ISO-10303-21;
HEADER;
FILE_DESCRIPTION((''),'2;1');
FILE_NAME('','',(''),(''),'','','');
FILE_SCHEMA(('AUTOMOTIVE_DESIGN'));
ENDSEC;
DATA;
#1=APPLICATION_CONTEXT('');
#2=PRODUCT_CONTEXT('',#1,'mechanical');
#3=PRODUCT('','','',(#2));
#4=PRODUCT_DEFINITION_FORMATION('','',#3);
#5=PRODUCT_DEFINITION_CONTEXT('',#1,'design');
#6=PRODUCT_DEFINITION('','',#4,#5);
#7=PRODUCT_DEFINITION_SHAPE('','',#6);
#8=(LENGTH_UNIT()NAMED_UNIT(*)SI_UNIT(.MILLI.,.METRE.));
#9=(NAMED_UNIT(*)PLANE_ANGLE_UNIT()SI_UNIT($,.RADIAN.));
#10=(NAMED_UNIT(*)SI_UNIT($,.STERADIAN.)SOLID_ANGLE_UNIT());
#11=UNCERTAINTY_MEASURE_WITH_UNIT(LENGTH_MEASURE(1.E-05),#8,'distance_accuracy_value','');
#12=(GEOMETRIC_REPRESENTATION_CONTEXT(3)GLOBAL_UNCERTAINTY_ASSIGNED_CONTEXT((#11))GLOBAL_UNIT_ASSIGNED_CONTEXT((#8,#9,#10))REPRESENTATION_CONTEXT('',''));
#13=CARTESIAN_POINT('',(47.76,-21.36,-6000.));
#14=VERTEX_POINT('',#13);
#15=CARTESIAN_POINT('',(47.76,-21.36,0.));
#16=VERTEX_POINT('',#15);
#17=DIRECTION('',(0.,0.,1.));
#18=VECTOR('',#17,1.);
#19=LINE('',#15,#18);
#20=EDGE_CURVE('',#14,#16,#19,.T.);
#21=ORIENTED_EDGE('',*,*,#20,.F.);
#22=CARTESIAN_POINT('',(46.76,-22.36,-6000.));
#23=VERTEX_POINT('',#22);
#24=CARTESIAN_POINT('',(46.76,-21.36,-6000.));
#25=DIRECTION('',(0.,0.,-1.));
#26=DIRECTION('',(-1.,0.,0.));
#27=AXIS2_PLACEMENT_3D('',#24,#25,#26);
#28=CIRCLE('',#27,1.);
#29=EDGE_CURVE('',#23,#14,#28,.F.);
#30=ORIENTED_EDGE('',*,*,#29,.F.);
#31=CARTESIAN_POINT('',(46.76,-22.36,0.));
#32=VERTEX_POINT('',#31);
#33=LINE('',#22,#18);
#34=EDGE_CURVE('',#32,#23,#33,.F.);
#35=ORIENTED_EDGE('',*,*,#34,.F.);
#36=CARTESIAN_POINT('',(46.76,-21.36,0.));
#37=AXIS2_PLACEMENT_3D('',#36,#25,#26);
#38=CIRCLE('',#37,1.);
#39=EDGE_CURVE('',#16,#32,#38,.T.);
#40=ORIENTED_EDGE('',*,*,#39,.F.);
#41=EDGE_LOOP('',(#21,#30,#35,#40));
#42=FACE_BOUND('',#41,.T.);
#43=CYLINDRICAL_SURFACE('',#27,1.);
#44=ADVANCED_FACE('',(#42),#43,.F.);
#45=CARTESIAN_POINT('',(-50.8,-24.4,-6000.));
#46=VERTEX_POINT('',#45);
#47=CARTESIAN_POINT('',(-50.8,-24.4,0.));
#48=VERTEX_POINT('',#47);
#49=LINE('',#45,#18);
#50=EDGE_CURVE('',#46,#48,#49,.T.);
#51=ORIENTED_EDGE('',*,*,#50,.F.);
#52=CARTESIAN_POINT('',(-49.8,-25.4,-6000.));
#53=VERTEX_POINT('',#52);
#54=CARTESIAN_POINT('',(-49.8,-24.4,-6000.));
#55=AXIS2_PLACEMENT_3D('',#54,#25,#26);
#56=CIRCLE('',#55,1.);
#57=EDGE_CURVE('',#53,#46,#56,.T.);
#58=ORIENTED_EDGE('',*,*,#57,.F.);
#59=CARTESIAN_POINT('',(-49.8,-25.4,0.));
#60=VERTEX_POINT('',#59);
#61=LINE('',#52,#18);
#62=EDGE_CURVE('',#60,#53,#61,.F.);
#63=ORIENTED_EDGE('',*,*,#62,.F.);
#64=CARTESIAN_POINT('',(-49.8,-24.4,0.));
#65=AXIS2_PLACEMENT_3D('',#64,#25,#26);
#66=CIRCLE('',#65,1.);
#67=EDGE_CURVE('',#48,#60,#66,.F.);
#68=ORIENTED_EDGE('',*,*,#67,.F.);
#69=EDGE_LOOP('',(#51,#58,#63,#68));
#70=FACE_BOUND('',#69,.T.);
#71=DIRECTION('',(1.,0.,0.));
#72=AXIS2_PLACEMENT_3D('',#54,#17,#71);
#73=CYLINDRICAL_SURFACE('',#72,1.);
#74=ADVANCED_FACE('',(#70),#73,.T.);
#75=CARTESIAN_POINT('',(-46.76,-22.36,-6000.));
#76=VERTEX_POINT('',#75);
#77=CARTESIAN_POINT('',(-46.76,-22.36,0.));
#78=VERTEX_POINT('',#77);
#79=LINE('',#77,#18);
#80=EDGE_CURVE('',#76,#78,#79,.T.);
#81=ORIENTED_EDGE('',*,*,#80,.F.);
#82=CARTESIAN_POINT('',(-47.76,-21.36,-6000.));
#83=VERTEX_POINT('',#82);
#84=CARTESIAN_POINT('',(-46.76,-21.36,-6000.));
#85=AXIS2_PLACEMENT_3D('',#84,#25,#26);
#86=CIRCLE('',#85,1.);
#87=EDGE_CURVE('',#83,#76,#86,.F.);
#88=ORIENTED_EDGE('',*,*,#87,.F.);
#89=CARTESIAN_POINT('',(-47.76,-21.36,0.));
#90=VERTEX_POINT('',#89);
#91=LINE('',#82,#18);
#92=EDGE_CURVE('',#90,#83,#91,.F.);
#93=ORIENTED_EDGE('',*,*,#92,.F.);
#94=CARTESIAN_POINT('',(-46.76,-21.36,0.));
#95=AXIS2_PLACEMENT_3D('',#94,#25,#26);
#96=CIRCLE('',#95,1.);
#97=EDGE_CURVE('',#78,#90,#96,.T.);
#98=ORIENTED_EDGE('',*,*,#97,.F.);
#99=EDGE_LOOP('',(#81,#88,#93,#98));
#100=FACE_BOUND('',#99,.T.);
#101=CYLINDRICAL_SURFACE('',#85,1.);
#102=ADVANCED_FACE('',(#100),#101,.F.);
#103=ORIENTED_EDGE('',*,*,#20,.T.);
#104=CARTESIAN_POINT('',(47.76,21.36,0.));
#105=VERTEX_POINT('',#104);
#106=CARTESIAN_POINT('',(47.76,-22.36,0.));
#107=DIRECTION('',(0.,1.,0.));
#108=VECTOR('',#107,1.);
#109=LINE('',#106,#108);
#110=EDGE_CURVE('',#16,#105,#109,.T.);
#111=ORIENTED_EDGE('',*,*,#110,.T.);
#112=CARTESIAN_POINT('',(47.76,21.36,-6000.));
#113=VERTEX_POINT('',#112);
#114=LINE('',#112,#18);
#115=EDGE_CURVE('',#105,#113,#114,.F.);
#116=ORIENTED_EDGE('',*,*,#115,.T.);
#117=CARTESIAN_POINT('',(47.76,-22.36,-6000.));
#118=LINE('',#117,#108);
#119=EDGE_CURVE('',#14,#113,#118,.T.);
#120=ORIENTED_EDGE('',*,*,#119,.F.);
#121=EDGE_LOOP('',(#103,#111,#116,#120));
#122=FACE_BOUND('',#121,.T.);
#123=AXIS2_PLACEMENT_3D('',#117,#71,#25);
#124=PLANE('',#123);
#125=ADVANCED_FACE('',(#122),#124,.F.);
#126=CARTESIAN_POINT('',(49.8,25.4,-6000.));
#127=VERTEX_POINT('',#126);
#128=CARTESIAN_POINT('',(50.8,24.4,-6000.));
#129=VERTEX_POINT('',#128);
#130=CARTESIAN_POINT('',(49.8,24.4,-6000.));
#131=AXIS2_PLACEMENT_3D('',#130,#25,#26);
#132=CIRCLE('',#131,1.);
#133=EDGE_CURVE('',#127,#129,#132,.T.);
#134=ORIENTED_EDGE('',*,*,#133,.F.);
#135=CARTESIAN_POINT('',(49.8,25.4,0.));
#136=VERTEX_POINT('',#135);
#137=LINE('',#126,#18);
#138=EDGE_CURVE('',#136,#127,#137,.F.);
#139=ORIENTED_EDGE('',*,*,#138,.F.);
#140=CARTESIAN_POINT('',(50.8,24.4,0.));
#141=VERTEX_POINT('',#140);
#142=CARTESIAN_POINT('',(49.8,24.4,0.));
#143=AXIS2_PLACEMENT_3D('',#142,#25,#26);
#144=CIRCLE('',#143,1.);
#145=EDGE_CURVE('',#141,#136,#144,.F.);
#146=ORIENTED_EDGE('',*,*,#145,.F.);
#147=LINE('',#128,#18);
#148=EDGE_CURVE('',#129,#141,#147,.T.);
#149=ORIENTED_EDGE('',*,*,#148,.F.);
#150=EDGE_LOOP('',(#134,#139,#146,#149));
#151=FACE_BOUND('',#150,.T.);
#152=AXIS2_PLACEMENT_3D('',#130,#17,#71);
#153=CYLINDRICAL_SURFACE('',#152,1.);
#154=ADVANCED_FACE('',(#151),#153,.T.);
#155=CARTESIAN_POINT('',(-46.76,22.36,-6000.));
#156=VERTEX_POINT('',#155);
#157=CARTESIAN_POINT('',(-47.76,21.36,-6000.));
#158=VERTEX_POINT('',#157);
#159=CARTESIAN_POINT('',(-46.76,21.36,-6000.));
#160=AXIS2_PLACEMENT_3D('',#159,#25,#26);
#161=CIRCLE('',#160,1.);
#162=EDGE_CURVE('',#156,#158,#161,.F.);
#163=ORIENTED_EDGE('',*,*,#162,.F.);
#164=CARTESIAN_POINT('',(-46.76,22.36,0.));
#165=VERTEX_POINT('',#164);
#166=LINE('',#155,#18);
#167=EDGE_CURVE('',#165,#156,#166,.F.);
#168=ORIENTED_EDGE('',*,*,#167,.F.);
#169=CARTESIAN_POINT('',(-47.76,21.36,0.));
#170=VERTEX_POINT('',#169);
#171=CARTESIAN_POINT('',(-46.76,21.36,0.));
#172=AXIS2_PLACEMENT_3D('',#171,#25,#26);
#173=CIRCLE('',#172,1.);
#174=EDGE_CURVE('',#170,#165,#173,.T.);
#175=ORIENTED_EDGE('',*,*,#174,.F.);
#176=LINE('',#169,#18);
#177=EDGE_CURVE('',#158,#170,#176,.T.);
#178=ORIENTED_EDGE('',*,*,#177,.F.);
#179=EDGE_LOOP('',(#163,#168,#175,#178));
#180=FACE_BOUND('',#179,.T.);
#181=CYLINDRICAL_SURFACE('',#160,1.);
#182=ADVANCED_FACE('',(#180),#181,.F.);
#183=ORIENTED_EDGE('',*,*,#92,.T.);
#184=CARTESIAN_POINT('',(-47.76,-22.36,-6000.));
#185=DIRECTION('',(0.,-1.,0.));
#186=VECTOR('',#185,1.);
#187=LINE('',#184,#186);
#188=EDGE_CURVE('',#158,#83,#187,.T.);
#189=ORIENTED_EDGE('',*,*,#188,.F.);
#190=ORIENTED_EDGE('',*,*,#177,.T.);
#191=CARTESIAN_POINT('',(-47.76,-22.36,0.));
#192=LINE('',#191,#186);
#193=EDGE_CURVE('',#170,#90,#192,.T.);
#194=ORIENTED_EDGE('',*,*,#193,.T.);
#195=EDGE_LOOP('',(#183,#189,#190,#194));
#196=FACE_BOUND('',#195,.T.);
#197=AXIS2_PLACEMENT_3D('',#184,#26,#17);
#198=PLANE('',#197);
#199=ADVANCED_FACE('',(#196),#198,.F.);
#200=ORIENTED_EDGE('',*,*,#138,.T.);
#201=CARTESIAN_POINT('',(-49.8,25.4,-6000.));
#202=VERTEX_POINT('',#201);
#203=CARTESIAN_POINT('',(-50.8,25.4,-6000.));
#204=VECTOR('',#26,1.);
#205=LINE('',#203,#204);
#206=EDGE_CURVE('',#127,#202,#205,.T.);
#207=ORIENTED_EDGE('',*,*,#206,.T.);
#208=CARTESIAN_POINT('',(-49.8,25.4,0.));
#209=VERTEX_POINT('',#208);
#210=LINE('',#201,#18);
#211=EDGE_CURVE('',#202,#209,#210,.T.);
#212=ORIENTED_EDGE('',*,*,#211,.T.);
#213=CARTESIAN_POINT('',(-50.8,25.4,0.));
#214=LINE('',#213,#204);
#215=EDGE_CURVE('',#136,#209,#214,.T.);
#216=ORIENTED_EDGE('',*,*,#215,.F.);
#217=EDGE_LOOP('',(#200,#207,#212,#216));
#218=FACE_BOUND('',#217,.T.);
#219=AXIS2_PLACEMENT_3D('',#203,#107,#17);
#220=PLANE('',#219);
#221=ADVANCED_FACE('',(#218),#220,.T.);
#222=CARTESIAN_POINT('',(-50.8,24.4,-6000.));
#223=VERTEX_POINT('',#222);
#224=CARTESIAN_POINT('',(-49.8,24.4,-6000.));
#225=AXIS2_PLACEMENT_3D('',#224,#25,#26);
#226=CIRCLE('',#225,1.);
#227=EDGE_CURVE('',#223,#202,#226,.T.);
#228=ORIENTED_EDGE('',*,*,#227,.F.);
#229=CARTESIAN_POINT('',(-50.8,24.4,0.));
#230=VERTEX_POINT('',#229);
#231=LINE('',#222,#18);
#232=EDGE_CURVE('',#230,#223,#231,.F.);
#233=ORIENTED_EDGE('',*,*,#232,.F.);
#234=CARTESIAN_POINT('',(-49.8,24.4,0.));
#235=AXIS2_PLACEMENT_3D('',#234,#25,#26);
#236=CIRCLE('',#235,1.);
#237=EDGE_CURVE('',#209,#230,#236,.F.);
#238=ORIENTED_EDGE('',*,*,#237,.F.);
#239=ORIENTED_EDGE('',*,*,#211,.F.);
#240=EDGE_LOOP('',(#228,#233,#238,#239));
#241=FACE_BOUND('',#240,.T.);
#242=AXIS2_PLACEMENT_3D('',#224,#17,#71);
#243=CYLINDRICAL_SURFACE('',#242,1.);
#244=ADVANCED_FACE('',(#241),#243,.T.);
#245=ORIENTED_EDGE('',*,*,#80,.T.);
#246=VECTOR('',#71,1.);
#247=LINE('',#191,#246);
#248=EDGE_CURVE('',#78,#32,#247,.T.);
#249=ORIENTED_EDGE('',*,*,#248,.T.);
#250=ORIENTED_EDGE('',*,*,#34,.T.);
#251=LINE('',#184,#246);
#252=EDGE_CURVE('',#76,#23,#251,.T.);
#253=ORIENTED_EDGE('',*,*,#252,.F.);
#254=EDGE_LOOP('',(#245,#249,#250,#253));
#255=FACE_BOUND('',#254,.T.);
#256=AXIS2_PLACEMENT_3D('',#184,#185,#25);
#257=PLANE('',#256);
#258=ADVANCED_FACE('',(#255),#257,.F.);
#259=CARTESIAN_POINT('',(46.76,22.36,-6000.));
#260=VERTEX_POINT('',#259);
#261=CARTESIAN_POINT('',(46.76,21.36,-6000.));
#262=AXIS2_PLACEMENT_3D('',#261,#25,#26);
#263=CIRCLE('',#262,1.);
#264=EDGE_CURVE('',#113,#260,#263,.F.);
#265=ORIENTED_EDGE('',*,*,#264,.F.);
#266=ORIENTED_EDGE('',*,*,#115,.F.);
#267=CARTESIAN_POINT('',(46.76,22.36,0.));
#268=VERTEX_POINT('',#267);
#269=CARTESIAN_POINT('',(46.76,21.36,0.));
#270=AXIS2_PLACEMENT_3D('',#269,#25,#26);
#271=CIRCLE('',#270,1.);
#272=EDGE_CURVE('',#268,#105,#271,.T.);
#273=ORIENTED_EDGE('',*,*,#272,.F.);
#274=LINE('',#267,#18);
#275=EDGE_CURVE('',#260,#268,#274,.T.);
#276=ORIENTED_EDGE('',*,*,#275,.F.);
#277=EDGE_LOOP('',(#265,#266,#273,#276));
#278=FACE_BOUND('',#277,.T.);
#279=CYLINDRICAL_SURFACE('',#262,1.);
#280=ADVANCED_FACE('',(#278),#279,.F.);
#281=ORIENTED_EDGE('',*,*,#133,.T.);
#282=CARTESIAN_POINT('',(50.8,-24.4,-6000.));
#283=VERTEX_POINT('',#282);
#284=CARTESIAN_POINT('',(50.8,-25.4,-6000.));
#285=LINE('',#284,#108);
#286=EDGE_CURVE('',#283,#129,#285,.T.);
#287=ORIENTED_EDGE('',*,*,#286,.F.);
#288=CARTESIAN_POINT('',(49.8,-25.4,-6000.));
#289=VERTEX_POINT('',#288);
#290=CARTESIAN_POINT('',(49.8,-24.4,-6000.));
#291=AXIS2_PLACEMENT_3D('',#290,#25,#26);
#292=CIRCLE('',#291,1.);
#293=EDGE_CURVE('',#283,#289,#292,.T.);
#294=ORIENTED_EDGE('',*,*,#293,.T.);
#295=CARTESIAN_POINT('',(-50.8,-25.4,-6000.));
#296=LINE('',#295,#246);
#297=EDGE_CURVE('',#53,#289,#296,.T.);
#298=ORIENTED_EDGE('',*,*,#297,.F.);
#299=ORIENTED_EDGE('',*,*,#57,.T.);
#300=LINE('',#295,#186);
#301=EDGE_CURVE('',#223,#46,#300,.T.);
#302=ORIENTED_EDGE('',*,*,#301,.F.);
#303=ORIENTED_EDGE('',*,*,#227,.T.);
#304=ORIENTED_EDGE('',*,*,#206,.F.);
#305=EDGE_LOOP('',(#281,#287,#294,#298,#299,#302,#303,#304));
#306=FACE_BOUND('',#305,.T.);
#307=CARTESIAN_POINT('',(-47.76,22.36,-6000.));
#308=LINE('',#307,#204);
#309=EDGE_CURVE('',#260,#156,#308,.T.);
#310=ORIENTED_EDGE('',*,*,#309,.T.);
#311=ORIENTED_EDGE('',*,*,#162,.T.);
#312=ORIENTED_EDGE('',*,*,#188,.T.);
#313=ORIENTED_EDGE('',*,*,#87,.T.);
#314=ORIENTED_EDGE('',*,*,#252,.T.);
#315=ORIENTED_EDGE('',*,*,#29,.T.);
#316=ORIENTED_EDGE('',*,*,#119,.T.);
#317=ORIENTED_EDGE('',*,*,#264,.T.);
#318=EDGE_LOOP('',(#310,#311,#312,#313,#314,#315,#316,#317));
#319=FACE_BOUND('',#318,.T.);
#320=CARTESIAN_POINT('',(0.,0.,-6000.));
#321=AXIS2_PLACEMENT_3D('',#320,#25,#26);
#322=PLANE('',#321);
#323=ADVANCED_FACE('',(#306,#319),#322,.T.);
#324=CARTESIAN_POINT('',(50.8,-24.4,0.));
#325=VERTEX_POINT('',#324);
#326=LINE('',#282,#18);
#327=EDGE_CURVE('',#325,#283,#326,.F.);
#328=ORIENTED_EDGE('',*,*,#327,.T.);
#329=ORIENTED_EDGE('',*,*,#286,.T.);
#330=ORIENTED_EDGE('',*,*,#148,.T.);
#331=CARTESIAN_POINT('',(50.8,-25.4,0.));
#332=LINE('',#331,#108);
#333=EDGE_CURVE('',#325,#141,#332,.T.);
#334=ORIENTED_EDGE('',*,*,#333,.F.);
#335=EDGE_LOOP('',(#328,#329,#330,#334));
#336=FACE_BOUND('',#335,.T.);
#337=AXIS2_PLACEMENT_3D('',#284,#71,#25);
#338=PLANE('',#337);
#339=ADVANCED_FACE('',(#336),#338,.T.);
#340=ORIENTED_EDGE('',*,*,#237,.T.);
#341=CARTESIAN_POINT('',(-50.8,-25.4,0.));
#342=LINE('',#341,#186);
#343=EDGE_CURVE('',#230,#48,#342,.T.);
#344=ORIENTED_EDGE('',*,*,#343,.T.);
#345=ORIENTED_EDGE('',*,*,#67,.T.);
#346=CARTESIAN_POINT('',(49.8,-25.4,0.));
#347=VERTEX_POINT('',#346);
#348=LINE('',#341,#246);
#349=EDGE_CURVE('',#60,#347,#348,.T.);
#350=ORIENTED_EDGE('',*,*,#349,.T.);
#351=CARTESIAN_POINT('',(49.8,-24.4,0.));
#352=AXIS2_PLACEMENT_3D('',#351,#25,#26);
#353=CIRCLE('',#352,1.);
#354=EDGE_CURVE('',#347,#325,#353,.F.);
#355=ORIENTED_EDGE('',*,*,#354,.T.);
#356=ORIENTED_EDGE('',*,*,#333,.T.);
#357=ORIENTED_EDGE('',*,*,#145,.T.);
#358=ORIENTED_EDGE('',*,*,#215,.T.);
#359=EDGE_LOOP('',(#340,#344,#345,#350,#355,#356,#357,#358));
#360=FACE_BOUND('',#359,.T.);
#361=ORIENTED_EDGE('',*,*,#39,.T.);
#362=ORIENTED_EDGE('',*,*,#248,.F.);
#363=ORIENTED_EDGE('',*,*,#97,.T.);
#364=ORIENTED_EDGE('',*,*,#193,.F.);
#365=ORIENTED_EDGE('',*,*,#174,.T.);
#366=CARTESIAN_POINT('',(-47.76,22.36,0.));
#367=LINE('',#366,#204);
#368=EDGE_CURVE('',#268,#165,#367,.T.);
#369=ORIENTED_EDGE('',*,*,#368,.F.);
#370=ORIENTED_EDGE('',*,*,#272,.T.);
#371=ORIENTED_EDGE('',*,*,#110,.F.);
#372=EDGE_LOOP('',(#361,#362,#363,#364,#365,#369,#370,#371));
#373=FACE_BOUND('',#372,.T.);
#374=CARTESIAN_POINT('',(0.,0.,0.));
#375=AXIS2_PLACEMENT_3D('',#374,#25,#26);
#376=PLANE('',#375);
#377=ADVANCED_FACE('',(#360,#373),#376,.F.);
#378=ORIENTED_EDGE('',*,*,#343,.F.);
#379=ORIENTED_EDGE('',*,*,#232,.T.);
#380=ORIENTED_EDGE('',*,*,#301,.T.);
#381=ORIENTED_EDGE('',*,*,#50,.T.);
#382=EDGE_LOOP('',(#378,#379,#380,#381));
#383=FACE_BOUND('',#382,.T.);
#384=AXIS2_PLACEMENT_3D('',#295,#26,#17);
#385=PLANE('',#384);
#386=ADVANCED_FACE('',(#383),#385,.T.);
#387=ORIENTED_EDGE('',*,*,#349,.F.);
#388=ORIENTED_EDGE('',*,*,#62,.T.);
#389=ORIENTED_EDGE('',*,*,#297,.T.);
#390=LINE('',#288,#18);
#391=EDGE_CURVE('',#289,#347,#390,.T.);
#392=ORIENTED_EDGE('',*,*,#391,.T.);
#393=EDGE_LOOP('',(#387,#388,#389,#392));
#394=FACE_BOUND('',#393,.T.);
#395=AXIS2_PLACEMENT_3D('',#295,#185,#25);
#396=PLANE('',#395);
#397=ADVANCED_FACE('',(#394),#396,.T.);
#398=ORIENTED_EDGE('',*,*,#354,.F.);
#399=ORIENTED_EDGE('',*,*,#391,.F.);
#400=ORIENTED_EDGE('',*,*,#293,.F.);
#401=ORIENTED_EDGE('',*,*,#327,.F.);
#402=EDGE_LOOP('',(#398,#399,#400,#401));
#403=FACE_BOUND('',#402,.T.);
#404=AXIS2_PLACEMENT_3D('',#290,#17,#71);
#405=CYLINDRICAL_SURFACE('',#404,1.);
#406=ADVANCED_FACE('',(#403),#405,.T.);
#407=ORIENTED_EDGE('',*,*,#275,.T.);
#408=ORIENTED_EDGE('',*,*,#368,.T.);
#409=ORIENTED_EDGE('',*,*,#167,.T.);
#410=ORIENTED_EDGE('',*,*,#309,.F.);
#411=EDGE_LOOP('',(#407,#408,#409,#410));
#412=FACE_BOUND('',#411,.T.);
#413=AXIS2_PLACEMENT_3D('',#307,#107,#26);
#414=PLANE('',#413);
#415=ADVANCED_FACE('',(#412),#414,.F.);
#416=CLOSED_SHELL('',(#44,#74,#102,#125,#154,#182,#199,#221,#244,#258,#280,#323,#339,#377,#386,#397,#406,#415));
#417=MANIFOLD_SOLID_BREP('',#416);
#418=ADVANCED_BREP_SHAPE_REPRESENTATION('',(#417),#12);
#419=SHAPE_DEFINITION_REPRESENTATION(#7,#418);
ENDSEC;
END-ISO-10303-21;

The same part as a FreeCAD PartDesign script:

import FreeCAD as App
import Part
import Sketcher
from FreeCAD import Vector


def edges_at(feature, points):
    """Names of the edges that pass closest to the given points."""
    edges = feature.Shape.Edges
    near = lambda p: min(range(len(edges)), key=lambda i: edges[i].distToShape(Part.Vertex(*p))[0])
    return sorted({f"Edge{near(p) + 1}" for p in points})


def add_polygon(sketch, points):
    """Adds a closed chain of lines whose ends are joined by coincident constraints."""
    first, n = sketch.GeometryCount, len(points)
    for a, b in zip(points, points[1:] + points[:1]):
        sketch.addGeometry(Part.LineSegment(App.Vector(*a, 0), App.Vector(*b, 0)), False)
    for i in range(n):
        sketch.addConstraint(Sketcher.Constraint("Coincident", first + i, 2, first + (i + 1) % n, 1))

doc = App.newDocument("Part")
body = doc.addObject("PartDesign::Body", "Body")

sketch1 = body.newObject("Sketcher::SketchObject", "Sketch")
sketch1.AttachmentSupport = (doc.getObject("XY_Plane"), [""])
sketch1.MapMode = "FlatFace"
add_polygon(sketch1, [(-51, 25), (-51, -25), (51, -25), (51, 25)])
add_polygon(sketch1, [(48, -22), (-48, -22), (-48, 22), (48, 22)])
sketch1.addConstraint(Sketcher.Constraint("Vertical", 0))
sketch1.addConstraint(Sketcher.Constraint("Horizontal", 1))
sketch1.addConstraint(Sketcher.Constraint("Vertical", 2))
sketch1.addConstraint(Sketcher.Constraint("Horizontal", 3))
sketch1.addConstraint(Sketcher.Constraint("Horizontal", 4))
sketch1.addConstraint(Sketcher.Constraint("Vertical", 5))
sketch1.addConstraint(Sketcher.Constraint("Horizontal", 6))
sketch1.addConstraint(Sketcher.Constraint("Vertical", 7))
sketch1.addConstraint(Sketcher.Constraint("Symmetric", 0, 2, 2, 2, -1, 1))
sketch1.addConstraint(Sketcher.Constraint("Symmetric", 4, 2, 6, 2, -1, 1))
sketch1.addConstraint(Sketcher.Constraint("DistanceX", 1, 1, 1, 2, 101.6))
sketch1.addConstraint(Sketcher.Constraint("DistanceY", 0, 2, 0, 1, 50.8))
sketch1.addConstraint(Sketcher.Constraint("DistanceX", 4, 2, 4, 1, 95.52))
sketch1.addConstraint(Sketcher.Constraint("DistanceY", 5, 1, 5, 2, 44.72))
pad1 = body.newObject("PartDesign::Pad", "Pad")
pad1.Profile = sketch1
pad1.Length = 6000
pad1.Reversed = True
doc.recompute()

fillet = body.newObject("PartDesign::Fillet", "Fillet")
fillet.Base = (pad1, edges_at(pad1, [
    (47.76, -22.36, -3000),
    (-47.76, -22.36, -3000),
    (-47.76, 22.36, -3000),
    (47.76, 22.36, -3000),
    (50.8, -25.4, -3000),
    (-50.8, -25.4, -3000),
    (-50.8, 25.4, -3000),
    (50.8, 25.4, -3000),
]))
fillet.Radius = 1

doc.recompute()
